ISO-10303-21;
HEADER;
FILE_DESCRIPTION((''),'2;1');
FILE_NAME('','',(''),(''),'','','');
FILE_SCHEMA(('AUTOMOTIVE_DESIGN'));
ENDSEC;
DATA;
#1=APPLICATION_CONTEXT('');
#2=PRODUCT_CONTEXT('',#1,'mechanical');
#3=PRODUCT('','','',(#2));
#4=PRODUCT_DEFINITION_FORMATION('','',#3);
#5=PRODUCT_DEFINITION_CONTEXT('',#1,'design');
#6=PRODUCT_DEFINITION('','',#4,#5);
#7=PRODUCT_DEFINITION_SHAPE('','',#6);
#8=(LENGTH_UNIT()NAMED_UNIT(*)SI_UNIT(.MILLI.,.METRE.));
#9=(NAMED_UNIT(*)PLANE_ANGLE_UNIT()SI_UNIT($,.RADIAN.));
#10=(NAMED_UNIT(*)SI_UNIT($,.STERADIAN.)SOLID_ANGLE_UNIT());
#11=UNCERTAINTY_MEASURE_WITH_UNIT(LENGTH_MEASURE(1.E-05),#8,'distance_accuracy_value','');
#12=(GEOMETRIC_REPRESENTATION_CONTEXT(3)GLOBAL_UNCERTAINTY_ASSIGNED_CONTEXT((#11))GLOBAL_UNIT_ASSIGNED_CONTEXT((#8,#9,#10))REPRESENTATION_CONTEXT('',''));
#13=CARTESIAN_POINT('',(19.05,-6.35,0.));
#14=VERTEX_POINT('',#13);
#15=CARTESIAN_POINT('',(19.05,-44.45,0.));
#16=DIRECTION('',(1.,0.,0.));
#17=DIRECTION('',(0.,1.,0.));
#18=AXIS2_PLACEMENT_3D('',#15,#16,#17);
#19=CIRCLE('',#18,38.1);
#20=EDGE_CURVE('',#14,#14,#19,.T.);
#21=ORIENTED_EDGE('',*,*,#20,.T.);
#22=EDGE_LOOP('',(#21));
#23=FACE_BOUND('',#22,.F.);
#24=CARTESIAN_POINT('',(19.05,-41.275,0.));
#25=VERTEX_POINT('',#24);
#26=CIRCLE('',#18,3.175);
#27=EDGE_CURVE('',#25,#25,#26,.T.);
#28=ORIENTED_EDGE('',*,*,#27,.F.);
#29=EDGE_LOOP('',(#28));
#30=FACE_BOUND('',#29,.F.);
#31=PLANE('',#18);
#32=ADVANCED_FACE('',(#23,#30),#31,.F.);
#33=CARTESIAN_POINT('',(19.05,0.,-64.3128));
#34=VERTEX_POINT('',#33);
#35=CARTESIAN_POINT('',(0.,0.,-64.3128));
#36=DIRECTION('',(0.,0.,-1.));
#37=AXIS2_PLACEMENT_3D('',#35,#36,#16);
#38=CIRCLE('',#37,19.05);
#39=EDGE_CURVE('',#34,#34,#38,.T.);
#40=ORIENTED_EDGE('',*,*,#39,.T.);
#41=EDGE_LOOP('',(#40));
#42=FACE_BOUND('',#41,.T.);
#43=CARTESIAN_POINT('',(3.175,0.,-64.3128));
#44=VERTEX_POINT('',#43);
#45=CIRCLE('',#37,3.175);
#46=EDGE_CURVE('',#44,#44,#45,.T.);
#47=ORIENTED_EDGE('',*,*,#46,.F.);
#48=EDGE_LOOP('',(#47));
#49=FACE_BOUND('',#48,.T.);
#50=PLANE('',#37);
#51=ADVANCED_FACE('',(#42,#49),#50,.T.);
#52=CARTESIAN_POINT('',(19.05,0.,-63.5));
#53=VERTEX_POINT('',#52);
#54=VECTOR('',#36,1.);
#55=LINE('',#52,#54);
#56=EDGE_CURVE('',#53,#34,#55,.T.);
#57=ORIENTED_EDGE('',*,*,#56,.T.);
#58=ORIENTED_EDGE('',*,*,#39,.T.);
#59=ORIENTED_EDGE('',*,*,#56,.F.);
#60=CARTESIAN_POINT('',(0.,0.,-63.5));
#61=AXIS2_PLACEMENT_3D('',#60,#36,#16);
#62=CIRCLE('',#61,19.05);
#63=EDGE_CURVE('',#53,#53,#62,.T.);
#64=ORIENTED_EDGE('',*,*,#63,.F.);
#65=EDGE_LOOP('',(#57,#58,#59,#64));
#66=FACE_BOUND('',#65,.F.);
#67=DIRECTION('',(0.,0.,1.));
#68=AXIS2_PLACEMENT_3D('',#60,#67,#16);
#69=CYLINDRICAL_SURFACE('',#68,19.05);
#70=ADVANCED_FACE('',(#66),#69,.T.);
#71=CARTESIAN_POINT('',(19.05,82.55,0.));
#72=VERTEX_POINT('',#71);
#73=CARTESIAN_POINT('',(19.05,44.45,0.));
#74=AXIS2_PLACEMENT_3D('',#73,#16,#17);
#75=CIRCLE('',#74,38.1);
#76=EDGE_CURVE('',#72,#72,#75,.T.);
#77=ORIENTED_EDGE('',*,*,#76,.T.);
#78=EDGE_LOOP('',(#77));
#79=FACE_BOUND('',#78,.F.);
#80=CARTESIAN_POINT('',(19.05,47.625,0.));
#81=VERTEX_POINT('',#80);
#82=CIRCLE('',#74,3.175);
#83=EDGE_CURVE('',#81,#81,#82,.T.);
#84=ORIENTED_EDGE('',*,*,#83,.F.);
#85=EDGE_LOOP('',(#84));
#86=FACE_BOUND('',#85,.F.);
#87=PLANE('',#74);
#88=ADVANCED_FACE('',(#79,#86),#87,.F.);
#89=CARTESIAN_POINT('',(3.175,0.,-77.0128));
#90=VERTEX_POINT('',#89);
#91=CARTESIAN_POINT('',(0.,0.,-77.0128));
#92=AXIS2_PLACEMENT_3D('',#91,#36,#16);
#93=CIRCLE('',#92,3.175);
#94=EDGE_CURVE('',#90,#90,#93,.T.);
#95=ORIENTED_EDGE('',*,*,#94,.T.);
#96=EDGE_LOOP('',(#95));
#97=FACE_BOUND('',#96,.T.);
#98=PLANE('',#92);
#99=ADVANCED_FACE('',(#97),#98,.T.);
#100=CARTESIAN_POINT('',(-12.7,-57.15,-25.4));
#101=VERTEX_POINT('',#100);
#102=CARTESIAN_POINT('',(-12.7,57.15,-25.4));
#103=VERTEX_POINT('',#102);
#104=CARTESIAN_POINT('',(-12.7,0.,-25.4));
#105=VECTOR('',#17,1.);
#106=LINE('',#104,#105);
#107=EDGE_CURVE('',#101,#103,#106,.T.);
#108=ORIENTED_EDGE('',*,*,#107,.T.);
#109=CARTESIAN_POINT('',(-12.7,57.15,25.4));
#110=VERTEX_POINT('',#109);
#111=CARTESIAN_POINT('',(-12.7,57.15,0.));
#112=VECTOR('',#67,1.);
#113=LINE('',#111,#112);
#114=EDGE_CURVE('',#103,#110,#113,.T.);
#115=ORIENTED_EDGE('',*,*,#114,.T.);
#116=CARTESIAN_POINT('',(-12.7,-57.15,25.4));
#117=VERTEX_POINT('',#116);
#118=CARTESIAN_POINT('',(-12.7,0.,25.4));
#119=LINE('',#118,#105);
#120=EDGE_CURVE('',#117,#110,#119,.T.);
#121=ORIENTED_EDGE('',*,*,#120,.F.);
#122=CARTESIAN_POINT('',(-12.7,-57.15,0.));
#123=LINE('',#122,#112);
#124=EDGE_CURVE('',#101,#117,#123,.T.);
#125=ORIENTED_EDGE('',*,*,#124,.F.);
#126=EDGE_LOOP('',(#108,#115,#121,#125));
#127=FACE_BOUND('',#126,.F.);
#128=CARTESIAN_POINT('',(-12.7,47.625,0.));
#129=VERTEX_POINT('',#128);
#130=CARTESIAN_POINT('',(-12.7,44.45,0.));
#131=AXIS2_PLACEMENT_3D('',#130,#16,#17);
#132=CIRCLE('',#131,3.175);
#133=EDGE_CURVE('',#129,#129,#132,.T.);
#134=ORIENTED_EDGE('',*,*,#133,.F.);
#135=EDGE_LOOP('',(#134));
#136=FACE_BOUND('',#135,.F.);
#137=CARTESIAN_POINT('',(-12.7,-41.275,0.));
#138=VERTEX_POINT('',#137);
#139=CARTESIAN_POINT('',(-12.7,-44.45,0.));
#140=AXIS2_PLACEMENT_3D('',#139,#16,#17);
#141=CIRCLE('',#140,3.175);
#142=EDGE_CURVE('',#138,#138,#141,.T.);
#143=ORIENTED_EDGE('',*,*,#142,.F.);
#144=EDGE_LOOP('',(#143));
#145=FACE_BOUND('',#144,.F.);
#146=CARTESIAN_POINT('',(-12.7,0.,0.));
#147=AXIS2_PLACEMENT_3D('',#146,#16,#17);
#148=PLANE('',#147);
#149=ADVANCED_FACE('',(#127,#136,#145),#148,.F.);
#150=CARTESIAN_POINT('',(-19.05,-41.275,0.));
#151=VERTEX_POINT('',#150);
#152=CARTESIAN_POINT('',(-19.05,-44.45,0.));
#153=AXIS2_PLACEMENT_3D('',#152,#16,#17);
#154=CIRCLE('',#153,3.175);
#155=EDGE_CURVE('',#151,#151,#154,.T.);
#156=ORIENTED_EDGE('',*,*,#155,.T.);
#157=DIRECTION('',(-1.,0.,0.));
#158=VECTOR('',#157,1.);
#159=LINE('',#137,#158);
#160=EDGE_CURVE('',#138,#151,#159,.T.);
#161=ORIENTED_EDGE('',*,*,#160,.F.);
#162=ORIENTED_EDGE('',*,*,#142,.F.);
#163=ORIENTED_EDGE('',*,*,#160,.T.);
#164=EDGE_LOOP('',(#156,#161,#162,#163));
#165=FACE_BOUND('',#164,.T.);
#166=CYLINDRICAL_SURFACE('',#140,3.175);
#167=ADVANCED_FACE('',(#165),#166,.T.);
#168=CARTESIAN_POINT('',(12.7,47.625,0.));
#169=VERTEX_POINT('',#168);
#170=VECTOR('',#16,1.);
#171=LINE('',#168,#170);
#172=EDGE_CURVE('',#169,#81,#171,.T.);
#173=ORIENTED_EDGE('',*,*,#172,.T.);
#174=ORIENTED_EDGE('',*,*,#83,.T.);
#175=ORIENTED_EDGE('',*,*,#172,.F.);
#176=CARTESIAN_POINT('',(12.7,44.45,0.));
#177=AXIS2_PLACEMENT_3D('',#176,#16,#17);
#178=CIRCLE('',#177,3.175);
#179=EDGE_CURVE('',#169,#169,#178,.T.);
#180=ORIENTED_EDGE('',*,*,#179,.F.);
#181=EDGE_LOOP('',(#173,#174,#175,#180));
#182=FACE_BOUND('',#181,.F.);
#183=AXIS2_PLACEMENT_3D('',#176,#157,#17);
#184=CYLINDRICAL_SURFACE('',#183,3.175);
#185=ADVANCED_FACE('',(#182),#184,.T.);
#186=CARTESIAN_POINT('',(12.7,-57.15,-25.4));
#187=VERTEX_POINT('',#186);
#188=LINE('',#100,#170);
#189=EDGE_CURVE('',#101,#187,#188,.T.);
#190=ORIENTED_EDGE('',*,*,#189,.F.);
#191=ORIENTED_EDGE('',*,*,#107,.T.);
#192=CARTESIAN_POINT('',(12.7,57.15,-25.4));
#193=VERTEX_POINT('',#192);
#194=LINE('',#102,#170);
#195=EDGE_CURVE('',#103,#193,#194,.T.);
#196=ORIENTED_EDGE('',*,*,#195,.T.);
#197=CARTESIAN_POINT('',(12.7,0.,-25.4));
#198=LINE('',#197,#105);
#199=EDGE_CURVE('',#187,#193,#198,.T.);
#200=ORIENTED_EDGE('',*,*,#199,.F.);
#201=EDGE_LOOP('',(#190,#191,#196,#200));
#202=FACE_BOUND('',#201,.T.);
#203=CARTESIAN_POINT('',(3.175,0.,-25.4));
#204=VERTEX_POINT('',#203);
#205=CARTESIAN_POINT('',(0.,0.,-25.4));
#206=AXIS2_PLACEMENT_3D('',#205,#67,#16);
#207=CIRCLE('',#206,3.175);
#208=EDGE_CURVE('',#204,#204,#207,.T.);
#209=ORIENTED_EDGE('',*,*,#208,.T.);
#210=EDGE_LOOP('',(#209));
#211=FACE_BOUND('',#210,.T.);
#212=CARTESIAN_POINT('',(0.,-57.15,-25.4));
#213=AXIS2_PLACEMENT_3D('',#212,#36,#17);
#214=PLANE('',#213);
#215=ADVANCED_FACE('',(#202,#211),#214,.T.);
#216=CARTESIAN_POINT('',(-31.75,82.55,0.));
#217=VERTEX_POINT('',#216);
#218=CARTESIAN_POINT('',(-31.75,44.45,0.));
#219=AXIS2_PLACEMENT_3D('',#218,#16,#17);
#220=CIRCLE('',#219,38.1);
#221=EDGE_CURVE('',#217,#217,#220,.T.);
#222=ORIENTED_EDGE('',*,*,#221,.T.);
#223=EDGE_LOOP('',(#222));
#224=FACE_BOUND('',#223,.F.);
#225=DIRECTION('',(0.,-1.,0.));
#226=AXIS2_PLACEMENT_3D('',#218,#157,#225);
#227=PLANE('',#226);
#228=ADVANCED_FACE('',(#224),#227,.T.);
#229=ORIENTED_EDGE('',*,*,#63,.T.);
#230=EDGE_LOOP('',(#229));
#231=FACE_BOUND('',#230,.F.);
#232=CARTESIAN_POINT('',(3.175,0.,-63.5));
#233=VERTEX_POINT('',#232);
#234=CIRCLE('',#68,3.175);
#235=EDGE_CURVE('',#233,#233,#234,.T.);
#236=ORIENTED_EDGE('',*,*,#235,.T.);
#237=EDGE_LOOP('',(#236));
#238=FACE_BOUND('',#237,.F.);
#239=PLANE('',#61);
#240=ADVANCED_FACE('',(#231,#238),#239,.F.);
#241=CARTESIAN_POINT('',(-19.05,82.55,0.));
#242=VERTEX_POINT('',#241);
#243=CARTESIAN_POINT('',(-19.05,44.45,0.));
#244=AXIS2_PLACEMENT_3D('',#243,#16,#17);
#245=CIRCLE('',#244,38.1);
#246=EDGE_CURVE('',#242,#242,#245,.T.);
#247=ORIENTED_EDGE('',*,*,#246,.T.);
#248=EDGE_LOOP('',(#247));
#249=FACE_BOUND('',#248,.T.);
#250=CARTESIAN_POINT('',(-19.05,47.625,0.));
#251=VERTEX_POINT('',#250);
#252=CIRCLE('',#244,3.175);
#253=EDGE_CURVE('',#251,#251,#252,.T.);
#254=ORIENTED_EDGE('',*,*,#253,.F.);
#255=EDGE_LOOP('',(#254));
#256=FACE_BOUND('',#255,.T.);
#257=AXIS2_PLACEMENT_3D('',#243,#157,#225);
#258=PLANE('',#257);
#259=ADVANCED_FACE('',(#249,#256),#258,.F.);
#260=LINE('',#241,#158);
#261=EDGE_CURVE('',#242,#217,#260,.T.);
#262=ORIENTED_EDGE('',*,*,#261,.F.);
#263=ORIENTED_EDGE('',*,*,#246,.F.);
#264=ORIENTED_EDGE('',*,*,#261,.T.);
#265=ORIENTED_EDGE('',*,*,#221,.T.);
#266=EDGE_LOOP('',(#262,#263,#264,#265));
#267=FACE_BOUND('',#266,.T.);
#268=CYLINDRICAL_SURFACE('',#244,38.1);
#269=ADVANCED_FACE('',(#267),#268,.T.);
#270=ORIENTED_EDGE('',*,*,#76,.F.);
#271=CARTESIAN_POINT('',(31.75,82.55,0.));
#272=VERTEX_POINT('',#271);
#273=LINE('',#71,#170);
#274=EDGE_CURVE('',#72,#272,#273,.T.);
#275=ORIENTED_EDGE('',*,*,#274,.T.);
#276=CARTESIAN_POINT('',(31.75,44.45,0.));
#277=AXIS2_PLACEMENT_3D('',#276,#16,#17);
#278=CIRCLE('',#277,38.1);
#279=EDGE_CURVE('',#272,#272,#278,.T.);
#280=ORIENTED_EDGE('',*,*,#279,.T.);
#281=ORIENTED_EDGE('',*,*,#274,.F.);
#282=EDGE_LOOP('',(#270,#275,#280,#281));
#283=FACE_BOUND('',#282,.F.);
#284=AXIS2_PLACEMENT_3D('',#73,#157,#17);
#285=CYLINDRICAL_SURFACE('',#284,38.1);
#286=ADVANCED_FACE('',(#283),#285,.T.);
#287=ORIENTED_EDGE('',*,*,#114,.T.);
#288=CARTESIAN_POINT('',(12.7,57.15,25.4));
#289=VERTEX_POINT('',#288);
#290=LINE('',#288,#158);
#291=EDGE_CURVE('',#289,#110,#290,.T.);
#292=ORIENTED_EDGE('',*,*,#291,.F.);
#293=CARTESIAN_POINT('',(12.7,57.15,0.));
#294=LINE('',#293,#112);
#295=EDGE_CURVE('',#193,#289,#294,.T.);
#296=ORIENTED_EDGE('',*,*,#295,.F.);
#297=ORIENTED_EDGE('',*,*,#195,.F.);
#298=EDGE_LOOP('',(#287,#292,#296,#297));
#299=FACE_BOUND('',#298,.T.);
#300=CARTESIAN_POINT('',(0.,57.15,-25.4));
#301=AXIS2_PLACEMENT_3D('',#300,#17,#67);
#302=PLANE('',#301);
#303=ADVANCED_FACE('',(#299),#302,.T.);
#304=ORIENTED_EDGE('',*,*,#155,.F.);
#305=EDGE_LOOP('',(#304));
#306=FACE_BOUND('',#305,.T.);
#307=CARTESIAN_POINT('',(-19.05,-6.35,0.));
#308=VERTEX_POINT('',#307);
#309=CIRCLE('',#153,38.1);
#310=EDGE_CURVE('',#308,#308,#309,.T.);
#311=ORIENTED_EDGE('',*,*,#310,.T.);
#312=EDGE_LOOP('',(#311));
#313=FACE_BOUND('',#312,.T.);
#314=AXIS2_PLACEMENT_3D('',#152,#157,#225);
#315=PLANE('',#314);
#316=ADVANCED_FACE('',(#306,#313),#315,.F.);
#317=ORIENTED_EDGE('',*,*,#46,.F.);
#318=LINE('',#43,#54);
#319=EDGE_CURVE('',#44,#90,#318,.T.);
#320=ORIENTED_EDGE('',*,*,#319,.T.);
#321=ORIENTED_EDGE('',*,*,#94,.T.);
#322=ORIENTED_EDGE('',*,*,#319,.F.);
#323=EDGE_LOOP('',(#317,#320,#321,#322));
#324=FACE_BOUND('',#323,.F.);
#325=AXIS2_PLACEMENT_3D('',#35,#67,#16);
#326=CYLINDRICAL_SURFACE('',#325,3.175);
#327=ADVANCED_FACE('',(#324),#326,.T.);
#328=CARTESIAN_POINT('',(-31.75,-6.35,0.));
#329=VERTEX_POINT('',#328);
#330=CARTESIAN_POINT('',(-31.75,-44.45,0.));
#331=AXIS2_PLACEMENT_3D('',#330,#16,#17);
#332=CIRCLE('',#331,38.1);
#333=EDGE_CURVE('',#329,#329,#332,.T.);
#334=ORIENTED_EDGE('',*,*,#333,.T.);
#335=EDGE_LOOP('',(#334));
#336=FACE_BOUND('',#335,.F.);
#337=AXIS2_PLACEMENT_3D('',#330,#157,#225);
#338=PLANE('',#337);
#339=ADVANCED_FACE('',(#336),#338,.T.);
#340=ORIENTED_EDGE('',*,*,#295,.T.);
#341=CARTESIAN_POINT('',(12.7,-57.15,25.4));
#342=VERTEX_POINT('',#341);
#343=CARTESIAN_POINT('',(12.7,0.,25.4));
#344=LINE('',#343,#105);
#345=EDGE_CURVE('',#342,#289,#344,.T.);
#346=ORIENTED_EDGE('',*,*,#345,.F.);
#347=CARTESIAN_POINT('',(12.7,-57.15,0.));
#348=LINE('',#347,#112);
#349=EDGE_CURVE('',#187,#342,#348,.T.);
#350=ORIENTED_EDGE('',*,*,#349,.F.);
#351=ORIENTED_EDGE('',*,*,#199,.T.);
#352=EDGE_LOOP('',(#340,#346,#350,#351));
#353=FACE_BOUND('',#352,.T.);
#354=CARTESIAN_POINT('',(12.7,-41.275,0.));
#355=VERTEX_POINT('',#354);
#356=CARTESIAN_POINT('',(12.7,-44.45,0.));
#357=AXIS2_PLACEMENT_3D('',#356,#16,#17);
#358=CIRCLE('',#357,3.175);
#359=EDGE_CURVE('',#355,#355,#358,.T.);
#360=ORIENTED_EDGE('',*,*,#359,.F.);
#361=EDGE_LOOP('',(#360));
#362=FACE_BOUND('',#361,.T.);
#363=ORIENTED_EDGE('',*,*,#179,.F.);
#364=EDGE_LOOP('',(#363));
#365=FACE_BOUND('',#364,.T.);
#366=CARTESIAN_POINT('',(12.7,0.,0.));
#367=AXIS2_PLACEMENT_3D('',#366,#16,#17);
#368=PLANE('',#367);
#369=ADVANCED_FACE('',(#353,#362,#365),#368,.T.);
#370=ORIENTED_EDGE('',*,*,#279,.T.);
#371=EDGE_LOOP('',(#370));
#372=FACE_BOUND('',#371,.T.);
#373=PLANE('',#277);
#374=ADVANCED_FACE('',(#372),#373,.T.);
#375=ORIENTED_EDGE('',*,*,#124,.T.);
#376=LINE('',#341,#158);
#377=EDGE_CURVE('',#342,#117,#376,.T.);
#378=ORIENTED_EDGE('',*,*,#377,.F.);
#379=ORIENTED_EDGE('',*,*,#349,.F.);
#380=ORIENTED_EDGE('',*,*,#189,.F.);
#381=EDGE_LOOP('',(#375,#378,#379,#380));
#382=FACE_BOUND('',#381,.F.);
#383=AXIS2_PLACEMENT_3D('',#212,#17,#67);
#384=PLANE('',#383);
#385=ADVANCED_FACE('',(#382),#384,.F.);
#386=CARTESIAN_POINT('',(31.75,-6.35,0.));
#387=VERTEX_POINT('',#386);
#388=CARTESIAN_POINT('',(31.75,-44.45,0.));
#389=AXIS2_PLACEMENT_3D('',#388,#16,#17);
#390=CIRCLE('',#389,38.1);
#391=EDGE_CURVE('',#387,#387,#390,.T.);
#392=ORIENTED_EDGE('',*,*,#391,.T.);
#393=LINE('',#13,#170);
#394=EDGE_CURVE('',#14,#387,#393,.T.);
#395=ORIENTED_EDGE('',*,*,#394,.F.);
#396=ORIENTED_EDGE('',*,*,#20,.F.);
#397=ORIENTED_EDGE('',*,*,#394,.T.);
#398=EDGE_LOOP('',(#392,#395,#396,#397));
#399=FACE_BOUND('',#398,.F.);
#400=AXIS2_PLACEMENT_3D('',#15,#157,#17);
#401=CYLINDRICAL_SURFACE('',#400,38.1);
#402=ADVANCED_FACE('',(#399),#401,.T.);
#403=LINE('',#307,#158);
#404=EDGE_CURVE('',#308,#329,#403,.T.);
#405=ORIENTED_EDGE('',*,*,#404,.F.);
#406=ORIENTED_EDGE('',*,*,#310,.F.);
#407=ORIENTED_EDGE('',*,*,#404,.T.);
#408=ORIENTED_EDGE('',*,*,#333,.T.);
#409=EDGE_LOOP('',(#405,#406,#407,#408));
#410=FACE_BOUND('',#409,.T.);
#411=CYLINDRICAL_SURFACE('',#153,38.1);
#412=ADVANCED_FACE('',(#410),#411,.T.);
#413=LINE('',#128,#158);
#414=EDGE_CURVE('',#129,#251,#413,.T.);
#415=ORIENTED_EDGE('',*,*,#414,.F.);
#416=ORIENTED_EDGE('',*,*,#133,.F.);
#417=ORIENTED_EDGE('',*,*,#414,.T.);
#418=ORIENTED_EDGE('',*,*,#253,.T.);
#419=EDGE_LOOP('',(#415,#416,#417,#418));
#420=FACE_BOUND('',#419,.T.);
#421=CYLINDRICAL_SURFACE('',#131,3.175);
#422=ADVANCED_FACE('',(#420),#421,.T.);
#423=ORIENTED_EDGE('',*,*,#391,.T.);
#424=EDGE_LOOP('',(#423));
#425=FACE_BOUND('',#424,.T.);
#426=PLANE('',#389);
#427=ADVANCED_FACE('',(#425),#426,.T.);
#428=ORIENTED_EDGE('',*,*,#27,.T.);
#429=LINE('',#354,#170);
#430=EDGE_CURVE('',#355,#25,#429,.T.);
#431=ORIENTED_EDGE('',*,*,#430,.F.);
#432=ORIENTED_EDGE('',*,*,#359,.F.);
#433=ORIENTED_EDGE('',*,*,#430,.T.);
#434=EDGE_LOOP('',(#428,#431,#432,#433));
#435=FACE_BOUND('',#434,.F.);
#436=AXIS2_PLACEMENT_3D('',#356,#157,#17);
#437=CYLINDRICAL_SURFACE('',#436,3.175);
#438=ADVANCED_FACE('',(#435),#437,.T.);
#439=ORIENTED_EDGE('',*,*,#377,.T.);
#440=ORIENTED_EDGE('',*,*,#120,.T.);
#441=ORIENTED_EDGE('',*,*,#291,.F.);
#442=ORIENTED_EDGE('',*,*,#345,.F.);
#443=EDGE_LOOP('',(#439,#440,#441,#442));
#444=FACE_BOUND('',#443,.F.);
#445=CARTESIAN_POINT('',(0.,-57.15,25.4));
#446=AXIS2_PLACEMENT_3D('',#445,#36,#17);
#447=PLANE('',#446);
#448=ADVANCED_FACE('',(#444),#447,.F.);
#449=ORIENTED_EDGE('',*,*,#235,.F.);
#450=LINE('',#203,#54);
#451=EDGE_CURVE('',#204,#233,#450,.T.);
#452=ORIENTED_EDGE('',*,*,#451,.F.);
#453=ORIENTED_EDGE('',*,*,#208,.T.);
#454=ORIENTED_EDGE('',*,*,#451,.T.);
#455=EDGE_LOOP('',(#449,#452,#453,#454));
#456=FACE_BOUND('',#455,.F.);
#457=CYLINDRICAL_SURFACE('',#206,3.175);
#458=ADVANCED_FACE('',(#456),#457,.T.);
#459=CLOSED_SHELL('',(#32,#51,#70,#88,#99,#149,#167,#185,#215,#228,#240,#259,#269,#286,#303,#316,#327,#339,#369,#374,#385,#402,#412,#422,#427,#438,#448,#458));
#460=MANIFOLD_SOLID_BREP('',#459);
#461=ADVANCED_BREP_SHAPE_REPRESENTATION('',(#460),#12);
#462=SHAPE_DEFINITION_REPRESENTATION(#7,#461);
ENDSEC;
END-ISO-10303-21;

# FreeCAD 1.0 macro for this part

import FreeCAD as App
import Part
import Sketcher

V = App.Vector
Q = App.Units.Quantity


def add_polygon(sketch, points):
    """Adds a closed chain of lines whose ends are joined by coincident constraints."""
    first, n = sketch.GeometryCount, len(points)
    for a, b in zip(points, points[1:] + points[:1]):
        sketch.addGeometry(Part.LineSegment(App.Vector(*a, 0), App.Vector(*b, 0)), False)
    for i in range(n):
        sketch.addConstraint(Sketcher.Constraint("Coincident", first + i, 2, first + (i + 1) % n, 1))

doc = App.newDocument("Part")
body = doc.addObject("PartDesign::Body", "Body")

sketch1 = doc.addObject("Sketcher::SketchObject", "Sketch")
body.addObject(sketch1)
sketch1.AttachmentSupport = (doc.YZ_Plane, [""])
sketch1.MapMode = "FlatFace"
add_polygon(sketch1, [(-57.15, 25.4), (-57.15, -25.4), (57.15, -25.4), (57.15, 25.4)])
sketch1.addConstraint([
    Sketcher.Constraint("Vertical", 0),
    Sketcher.Constraint("Horizontal", 1),
    Sketcher.Constraint("Vertical", 2),
    Sketcher.Constraint("Horizontal", 3),
    Sketcher.Constraint("Symmetric", 0, 2, 2, 2, -1, 1),
    Sketcher.Constraint("DistanceY", 0, 2, 0, 1, Q("2 in")),
    Sketcher.Constraint("DistanceX", 1, 1, 1, 2, Q("4.5 in")),
])
pad1 = doc.addObject("PartDesign::Pad", "Pad")
body.addObject(pad1)
pad1.Profile = sketch1
pad1.Length = Q("1 in")
pad1.Midplane = True

sketch2 = doc.addObject("Sketcher::SketchObject", "Sketch001")
body.addObject(sketch2)
sketch2.AttachmentSupport = (doc.XY_Plane, [""])
sketch2.MapMode = "FlatFace"
sketch2.AttachmentOffset = App.Placement(V(0, 0, -1 * 25.4), App.Rotation())
sketch2.addGeometry(Part.Circle(V(0, 0, 0), V(0, 0, 1), 3.175), False)
sketch2.addConstraint([
    Sketcher.Constraint("Coincident", 0, 3, -1, 1),
    Sketcher.Constraint("Diameter", 0, Q("0.25 in")),
])
pad2 = doc.addObject("PartDesign::Pad", "Pad001")
body.addObject(pad2)
pad2.Profile = sketch2
pad2.Length = Q("1.5 in")
pad2.Reversed = True

sketch3 = doc.addObject("Sketcher::SketchObject", "Sketch002")
body.addObject(sketch3)
sketch3.AttachmentSupport = (doc.YZ_Plane, [""])
sketch3.MapMode = "FlatFace"
sketch3.AttachmentOffset = App.Placement(V(0, 0, 0.5 * 25.4), App.Rotation())
sketch3.addGeometry([
    Part.Circle(V(-44.45, 0, 0), V(0, 0, 1), 3.175),
    Part.Circle(V(44.45, 0, 0), V(0, 0, 1), 3.175),
], False)
sketch3.addConstraint([
    Sketcher.Constraint("Equal", 0, 1),
    Sketcher.Constraint("Symmetric", 0, 3, 1, 3, -1, 1),
    Sketcher.Constraint("PointOnObject", 0, 3, -1),
    Sketcher.Constraint("Diameter", 0, Q("0.25 in")),
    Sketcher.Constraint("DistanceX", 0, 3, 1, 3, Q("3.5 in")),
])
pad3 = doc.addObject("PartDesign::Pad", "Pad002")
body.addObject(pad3)
pad3.Profile = sketch3
pad3.Length = Q("0.25 in")

sketch4 = doc.addObject("Sketcher::SketchObject", "Sketch003")
body.addObject(sketch4)
sketch4.AttachmentSupport = (doc.YZ_Plane, [""])
sketch4.MapMode = "FlatFace"
sketch4.AttachmentOffset = App.Placement(V(0, 0, 0.75 * 25.4), App.Rotation())
sketch4.addGeometry([
    Part.Circle(V(-44.45, 0, 0), V(0, 0, 1), 38.1),
    Part.Circle(V(44.45, 0, 0), V(0, 0, 1), 38.1),
], False)
sketch4.addConstraint([
    Sketcher.Constraint("Equal", 0, 1),
    Sketcher.Constraint("Symmetric", 0, 3, 1, 3, -1, 1),
    Sketcher.Constraint("PointOnObject", 0, 3, -1),
    Sketcher.Constraint("Diameter", 0, Q("3 in")),
    Sketcher.Constraint("DistanceX", 0, 3, 1, 3, Q("3.5 in")),
])
pad4 = doc.addObject("PartDesign::Pad", "Pad003")
body.addObject(pad4)
pad4.Profile = sketch4
pad4.Length = Q("0.5 in")
body2 = doc.addObject("PartDesign::Body", "Body001")
doc.recompute()

body2.BaseFeature = body
doc.recompute()

mirroring = doc.addObject("Part::Mirroring", "Mirroring")
mirroring.Source = body
mirroring.Base = V(0, 0, 0)
mirroring.Normal = V(1, 0, 0)
body3 = doc.addObject("PartDesign::Body", "Body002")
body3.BaseFeature = mirroring
boolean = doc.addObject("PartDesign::Boolean", "Boolean")
body2.addObject(boolean)
boolean.Type = "Fuse"
boolean.addObjects([body3])
doc.recompute()

sketch5 = doc.addObject("Sketcher::SketchObject", "Sketch004")
body2.addObject(sketch5)
sketch5.AttachmentSupport = (doc.getObject("XY_Plane001"), [""])
sketch5.MapMode = "FlatFace"
sketch5.AttachmentOffset = App.Placement(V(0, 0, -2.5 * 25.4), App.Rotation())
sketch5.addGeometry(Part.Circle(V(0, 0, 0), V(0, 0, 1), 19.05), False)
sketch5.addConstraint([
    Sketcher.Constraint("Coincident", 0, 3, -1, 1),
    Sketcher.Constraint("Diameter", 0, Q("1.5 in")),
])
pad5 = doc.addObject("PartDesign::Pad", "Pad004")
body2.addObject(pad5)
pad5.Profile = sketch5
pad5.Length = Q("0.032 in")
pad5.Reversed = True

sketch6 = doc.addObject("Sketcher::SketchObject", "Sketch005")
body2.addObject(sketch6)
sketch6.AttachmentSupport = (doc.getObject("XY_Plane001"), [""])
sketch6.MapMode = "FlatFace"
sketch6.AttachmentOffset = App.Placement(V(0, 0, -2.532 * 25.4), App.Rotation())
sketch6.addGeometry(Part.Circle(V(0, 0, 0), V(0, 0, 1), 3.175), False)
sketch6.addConstraint([
    Sketcher.Constraint("Coincident", 0, 3, -1, 1),
    Sketcher.Constraint("Diameter", 0, Q("0.25 in")),
])
pad6 = doc.addObject("PartDesign::Pad", "Pad005")
body2.addObject(pad6)
pad6.Profile = sketch6
pad6.Length = Q("0.5 in")
pad6.Reversed = True
mirroring.Visibility = False

doc.recompute()
